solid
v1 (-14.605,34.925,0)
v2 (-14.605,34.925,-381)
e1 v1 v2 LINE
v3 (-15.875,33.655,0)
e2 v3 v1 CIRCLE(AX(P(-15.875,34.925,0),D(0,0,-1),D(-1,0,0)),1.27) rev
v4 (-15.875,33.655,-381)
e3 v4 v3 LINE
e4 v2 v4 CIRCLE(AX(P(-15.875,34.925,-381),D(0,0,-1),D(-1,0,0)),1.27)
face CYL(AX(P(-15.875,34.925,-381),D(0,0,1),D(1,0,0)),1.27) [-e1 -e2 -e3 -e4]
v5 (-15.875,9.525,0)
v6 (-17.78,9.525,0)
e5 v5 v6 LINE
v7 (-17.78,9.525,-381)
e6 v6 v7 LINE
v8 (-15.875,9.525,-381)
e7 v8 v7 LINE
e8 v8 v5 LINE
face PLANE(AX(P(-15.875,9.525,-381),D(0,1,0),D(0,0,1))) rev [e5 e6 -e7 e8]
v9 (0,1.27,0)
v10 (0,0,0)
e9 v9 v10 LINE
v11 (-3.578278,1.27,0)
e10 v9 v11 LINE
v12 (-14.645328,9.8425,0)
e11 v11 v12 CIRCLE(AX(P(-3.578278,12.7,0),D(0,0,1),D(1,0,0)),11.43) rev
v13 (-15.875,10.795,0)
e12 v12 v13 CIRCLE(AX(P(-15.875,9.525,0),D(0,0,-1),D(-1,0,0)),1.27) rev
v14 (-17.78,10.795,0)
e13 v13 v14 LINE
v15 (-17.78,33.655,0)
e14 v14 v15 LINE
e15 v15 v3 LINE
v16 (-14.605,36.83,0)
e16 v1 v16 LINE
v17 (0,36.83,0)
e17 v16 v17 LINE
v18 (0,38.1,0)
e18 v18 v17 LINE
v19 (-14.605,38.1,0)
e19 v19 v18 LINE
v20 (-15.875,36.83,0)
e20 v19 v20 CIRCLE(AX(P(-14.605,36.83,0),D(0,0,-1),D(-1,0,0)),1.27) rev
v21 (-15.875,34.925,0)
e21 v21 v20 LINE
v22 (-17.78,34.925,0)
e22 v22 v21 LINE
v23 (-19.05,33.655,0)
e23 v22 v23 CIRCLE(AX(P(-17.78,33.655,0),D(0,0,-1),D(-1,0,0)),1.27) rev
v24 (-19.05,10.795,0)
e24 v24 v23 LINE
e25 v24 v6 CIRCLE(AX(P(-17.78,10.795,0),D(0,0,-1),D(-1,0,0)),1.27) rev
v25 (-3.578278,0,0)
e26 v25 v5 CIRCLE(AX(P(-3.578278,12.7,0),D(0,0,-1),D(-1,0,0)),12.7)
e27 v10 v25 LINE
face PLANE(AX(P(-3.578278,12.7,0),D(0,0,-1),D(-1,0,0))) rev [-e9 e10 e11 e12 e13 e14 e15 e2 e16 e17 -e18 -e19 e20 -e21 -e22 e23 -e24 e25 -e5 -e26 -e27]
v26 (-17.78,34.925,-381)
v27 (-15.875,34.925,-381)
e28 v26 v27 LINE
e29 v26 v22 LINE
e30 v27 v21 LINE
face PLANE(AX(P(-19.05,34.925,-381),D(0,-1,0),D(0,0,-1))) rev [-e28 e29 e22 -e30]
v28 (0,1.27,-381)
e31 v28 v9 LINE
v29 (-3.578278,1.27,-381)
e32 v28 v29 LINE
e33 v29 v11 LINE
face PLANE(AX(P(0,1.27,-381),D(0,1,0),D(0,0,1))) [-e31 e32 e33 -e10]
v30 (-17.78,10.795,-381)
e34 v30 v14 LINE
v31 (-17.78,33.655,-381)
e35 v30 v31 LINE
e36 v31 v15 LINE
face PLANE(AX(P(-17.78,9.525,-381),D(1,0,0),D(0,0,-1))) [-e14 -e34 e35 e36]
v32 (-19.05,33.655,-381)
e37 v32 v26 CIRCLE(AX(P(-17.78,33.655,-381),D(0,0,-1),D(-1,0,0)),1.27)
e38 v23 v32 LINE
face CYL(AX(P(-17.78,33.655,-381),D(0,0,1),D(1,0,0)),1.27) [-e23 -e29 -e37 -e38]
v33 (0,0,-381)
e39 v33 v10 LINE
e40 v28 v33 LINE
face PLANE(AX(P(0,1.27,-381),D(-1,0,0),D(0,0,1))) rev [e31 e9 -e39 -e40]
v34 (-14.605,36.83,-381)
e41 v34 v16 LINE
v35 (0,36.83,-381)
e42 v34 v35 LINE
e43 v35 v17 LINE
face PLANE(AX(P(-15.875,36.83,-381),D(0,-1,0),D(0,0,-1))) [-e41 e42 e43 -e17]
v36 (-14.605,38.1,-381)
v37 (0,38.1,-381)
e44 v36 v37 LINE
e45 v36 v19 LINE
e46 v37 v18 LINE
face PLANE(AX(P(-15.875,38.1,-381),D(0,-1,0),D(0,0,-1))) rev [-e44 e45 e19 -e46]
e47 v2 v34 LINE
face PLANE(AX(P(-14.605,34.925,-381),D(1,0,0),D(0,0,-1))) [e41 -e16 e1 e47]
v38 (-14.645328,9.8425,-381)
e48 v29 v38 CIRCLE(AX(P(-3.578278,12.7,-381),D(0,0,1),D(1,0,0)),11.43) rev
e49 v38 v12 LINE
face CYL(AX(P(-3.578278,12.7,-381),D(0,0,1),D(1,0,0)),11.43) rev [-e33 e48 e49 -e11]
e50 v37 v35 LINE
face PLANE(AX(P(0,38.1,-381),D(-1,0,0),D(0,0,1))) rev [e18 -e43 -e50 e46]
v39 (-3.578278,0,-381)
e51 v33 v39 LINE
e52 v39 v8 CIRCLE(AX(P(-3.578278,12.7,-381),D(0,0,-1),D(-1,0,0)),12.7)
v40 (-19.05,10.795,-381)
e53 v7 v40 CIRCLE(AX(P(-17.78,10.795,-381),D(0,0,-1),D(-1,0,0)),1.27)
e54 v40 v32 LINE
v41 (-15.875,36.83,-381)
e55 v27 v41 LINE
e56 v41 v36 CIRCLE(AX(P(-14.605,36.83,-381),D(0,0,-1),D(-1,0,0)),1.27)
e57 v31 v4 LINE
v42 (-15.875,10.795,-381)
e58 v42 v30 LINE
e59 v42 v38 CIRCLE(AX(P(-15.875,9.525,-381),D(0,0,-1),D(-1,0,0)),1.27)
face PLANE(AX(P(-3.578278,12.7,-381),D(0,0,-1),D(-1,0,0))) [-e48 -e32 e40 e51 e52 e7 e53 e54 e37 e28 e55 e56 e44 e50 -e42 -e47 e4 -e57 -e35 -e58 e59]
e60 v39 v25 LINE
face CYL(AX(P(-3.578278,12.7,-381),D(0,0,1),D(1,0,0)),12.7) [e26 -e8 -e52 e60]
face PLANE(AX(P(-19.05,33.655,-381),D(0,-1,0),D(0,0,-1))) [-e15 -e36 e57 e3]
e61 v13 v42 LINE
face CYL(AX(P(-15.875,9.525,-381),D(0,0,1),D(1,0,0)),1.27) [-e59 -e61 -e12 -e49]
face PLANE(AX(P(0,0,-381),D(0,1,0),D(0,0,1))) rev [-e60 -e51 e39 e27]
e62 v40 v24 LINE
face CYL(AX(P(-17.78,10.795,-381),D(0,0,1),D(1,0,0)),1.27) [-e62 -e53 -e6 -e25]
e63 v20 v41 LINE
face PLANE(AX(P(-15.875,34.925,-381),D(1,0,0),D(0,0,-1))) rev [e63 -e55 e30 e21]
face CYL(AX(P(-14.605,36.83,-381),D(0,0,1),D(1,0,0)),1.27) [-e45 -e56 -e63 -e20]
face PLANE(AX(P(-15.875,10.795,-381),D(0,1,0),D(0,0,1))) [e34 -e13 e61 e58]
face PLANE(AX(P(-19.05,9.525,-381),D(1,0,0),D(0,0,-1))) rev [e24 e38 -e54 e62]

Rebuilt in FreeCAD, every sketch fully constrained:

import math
import FreeCAD as App
import Part
import Sketcher
from FreeCAD import Vector
Q = App.Units.Quantity


def edges_at(feature, points):
    """Names of the edges that pass closest to the given points."""
    edges = feature.Shape.Edges
    near = lambda p: min(range(len(edges)), key=lambda i: edges[i].distToShape(Part.Vertex(*p))[0])
    return sorted({f"Edge{near(p) + 1}" for p in points})

doc = App.newDocument("Part")
body = doc.addObject("PartDesign::Body", "Body")

sketch1 = doc.addObject("Sketcher::SketchObject", "Sketch")
body.addObject(sketch1)
sketch1.AttachmentSupport = (doc.XY_Plane, [""])
sketch1.MapMode = "FlatFace"
sketch1.addGeometry([
    Part.LineSegment(Vector(-3.6, 0, 0), Vector(0, 0, 0)),
    Part.LineSegment(Vector(0, 0, 0), Vector(0, 1.3, 0)),
    Part.LineSegment(Vector(0, 1.3, 0), Vector(-3.6, 1.3, 0)),
    Part.ArcOfCircle(Part.Circle(Vector(-3.6, 12.7, 0), Vector(0, 0, 1), 11.4), math.radians(-170), math.radians(-90)),
    Part.LineSegment(Vector(-14.8, 10.8, 0), Vector(-17.8, 10.8, 0)),
    Part.LineSegment(Vector(-17.8, 10.8, 0), Vector(-17.8, 33.7, 0)),
    Part.LineSegment(Vector(-17.8, 33.7, 0), Vector(-14.6, 33.7, 0)),
    Part.LineSegment(Vector(-14.6, 33.7, 0), Vector(-14.6, 36.8, 0)),
    Part.LineSegment(Vector(-14.6, 36.8, 0), Vector(0, 36.8, 0)),
    Part.LineSegment(Vector(0, 36.8, 0), Vector(0, 38.1, 0)),
    Part.LineSegment(Vector(0, 38.1, 0), Vector(-15.9, 38.1, 0)),
    Part.LineSegment(Vector(-15.9, 38.1, 0), Vector(-15.9, 34.9, 0)),
    Part.LineSegment(Vector(-15.9, 34.9, 0), Vector(-19.1, 34.9, 0)),
    Part.LineSegment(Vector(-19.1, 34.9, 0), Vector(-19.1, 9.5, 0)),
    Part.LineSegment(Vector(-19.1, 9.5, 0), Vector(-15.9, 9.5, 0)),
    Part.ArcOfCircle(Part.Circle(Vector(-3.6, 12.7, 0), Vector(0, 0, 1), 12.7), math.radians(-166), math.radians(-90)),
], False)
sketch1.addConstraint([
    Sketcher.Constraint("Coincident", 0, 2, 1, 1),
    Sketcher.Constraint("Coincident", 1, 2, 2, 1),
    Sketcher.Constraint("Tangent", 2, 2, 3, 2),
    Sketcher.Constraint("Coincident", 3, 1, 4, 1),
    Sketcher.Constraint("Coincident", 4, 2, 5, 1),
    Sketcher.Constraint("Coincident", 5, 2, 6, 1),
    Sketcher.Constraint("Coincident", 6, 2, 7, 1),
    Sketcher.Constraint("Coincident", 7, 2, 8, 1),
    Sketcher.Constraint("Coincident", 8, 2, 9, 1),
    Sketcher.Constraint("Coincident", 9, 2, 10, 1),
    Sketcher.Constraint("Coincident", 10, 2, 11, 1),
    Sketcher.Constraint("Coincident", 11, 2, 12, 1),
    Sketcher.Constraint("Coincident", 12, 2, 13, 1),
    Sketcher.Constraint("Coincident", 13, 2, 14, 1),
    Sketcher.Constraint("Coincident", 14, 2, 15, 1),
    Sketcher.Constraint("Tangent", 15, 2, 0, 1),
    Sketcher.Constraint("Horizontal", 0),
    Sketcher.Constraint("Vertical", 1),
    Sketcher.Constraint("Horizontal", 2),
    Sketcher.Constraint("Horizontal", 4),
    Sketcher.Constraint("Vertical", 5),
    Sketcher.Constraint("Horizontal", 6),
    Sketcher.Constraint("Vertical", 7),
    Sketcher.Constraint("Horizontal", 8),
    Sketcher.Constraint("Vertical", 9),
    Sketcher.Constraint("Horizontal", 10),
    Sketcher.Constraint("Vertical", 11),
    Sketcher.Constraint("Horizontal", 12),
    Sketcher.Constraint("Vertical", 13),
    Sketcher.Constraint("Horizontal", 14),
    Sketcher.Constraint("Coincident", 0, 2, -1, 1),
    Sketcher.Constraint("Coincident", 15, 3, 3, 3),
    Sketcher.Constraint("PointOnObject", 8, 2, -2),
    Sketcher.Constraint("Vertical", 11, 2, 14, 2),
    Sketcher.Constraint("Equal", 6, 12),
    Sketcher.Constraint("Equal", 14, 7),
    Sketcher.Constraint("Equal", 1, 9),
    Sketcher.Constraint("Equal", 7, 11),
    Sketcher.Constraint("Radius", 15, Q("0.5 in")),
    Sketcher.Constraint("DistanceY", 13, 2, 13, 1, Q("1 in")),
    Sketcher.Constraint("Radius", 3, Q("0.45 in")),
    Sketcher.Constraint("DistanceY", 5, 1, 5, 2, Q("0.9 in")),
    Sketcher.Constraint("DistanceY", 3, 3, 9, 2, Q("1 in")),
    Sketcher.Constraint("DistanceX", 4, 2, -1, 1, Q("0.7 in")),
    Sketcher.Constraint("DistanceX", 6, 1, 6, 2, Q("0.125 in")),
    Sketcher.Constraint("DistanceX", 10, 2, 10, 1, Q("0.625 in")),
])
pad1 = doc.addObject("PartDesign::Pad", "Pad")
body.addObject(pad1)
pad1.Profile = sketch1
pad1.Length = Q("15 in")
pad1.Reversed = True
doc.recompute()

fillet = doc.addObject("PartDesign::Fillet", "Fillet")
body.addObject(fillet)
fillet.Base = (pad1, edges_at(pad1, [
    (-14.605, 33.655, -190.5),
    (-14.848, 10.795, -190.5),
    (-19.05, 9.525, -190.5),
    (-19.05, 34.925, -190.5),
    (-15.875, 38.1, -190.5),
]))
fillet.Radius = Q("0.05 in")

doc.recompute()
